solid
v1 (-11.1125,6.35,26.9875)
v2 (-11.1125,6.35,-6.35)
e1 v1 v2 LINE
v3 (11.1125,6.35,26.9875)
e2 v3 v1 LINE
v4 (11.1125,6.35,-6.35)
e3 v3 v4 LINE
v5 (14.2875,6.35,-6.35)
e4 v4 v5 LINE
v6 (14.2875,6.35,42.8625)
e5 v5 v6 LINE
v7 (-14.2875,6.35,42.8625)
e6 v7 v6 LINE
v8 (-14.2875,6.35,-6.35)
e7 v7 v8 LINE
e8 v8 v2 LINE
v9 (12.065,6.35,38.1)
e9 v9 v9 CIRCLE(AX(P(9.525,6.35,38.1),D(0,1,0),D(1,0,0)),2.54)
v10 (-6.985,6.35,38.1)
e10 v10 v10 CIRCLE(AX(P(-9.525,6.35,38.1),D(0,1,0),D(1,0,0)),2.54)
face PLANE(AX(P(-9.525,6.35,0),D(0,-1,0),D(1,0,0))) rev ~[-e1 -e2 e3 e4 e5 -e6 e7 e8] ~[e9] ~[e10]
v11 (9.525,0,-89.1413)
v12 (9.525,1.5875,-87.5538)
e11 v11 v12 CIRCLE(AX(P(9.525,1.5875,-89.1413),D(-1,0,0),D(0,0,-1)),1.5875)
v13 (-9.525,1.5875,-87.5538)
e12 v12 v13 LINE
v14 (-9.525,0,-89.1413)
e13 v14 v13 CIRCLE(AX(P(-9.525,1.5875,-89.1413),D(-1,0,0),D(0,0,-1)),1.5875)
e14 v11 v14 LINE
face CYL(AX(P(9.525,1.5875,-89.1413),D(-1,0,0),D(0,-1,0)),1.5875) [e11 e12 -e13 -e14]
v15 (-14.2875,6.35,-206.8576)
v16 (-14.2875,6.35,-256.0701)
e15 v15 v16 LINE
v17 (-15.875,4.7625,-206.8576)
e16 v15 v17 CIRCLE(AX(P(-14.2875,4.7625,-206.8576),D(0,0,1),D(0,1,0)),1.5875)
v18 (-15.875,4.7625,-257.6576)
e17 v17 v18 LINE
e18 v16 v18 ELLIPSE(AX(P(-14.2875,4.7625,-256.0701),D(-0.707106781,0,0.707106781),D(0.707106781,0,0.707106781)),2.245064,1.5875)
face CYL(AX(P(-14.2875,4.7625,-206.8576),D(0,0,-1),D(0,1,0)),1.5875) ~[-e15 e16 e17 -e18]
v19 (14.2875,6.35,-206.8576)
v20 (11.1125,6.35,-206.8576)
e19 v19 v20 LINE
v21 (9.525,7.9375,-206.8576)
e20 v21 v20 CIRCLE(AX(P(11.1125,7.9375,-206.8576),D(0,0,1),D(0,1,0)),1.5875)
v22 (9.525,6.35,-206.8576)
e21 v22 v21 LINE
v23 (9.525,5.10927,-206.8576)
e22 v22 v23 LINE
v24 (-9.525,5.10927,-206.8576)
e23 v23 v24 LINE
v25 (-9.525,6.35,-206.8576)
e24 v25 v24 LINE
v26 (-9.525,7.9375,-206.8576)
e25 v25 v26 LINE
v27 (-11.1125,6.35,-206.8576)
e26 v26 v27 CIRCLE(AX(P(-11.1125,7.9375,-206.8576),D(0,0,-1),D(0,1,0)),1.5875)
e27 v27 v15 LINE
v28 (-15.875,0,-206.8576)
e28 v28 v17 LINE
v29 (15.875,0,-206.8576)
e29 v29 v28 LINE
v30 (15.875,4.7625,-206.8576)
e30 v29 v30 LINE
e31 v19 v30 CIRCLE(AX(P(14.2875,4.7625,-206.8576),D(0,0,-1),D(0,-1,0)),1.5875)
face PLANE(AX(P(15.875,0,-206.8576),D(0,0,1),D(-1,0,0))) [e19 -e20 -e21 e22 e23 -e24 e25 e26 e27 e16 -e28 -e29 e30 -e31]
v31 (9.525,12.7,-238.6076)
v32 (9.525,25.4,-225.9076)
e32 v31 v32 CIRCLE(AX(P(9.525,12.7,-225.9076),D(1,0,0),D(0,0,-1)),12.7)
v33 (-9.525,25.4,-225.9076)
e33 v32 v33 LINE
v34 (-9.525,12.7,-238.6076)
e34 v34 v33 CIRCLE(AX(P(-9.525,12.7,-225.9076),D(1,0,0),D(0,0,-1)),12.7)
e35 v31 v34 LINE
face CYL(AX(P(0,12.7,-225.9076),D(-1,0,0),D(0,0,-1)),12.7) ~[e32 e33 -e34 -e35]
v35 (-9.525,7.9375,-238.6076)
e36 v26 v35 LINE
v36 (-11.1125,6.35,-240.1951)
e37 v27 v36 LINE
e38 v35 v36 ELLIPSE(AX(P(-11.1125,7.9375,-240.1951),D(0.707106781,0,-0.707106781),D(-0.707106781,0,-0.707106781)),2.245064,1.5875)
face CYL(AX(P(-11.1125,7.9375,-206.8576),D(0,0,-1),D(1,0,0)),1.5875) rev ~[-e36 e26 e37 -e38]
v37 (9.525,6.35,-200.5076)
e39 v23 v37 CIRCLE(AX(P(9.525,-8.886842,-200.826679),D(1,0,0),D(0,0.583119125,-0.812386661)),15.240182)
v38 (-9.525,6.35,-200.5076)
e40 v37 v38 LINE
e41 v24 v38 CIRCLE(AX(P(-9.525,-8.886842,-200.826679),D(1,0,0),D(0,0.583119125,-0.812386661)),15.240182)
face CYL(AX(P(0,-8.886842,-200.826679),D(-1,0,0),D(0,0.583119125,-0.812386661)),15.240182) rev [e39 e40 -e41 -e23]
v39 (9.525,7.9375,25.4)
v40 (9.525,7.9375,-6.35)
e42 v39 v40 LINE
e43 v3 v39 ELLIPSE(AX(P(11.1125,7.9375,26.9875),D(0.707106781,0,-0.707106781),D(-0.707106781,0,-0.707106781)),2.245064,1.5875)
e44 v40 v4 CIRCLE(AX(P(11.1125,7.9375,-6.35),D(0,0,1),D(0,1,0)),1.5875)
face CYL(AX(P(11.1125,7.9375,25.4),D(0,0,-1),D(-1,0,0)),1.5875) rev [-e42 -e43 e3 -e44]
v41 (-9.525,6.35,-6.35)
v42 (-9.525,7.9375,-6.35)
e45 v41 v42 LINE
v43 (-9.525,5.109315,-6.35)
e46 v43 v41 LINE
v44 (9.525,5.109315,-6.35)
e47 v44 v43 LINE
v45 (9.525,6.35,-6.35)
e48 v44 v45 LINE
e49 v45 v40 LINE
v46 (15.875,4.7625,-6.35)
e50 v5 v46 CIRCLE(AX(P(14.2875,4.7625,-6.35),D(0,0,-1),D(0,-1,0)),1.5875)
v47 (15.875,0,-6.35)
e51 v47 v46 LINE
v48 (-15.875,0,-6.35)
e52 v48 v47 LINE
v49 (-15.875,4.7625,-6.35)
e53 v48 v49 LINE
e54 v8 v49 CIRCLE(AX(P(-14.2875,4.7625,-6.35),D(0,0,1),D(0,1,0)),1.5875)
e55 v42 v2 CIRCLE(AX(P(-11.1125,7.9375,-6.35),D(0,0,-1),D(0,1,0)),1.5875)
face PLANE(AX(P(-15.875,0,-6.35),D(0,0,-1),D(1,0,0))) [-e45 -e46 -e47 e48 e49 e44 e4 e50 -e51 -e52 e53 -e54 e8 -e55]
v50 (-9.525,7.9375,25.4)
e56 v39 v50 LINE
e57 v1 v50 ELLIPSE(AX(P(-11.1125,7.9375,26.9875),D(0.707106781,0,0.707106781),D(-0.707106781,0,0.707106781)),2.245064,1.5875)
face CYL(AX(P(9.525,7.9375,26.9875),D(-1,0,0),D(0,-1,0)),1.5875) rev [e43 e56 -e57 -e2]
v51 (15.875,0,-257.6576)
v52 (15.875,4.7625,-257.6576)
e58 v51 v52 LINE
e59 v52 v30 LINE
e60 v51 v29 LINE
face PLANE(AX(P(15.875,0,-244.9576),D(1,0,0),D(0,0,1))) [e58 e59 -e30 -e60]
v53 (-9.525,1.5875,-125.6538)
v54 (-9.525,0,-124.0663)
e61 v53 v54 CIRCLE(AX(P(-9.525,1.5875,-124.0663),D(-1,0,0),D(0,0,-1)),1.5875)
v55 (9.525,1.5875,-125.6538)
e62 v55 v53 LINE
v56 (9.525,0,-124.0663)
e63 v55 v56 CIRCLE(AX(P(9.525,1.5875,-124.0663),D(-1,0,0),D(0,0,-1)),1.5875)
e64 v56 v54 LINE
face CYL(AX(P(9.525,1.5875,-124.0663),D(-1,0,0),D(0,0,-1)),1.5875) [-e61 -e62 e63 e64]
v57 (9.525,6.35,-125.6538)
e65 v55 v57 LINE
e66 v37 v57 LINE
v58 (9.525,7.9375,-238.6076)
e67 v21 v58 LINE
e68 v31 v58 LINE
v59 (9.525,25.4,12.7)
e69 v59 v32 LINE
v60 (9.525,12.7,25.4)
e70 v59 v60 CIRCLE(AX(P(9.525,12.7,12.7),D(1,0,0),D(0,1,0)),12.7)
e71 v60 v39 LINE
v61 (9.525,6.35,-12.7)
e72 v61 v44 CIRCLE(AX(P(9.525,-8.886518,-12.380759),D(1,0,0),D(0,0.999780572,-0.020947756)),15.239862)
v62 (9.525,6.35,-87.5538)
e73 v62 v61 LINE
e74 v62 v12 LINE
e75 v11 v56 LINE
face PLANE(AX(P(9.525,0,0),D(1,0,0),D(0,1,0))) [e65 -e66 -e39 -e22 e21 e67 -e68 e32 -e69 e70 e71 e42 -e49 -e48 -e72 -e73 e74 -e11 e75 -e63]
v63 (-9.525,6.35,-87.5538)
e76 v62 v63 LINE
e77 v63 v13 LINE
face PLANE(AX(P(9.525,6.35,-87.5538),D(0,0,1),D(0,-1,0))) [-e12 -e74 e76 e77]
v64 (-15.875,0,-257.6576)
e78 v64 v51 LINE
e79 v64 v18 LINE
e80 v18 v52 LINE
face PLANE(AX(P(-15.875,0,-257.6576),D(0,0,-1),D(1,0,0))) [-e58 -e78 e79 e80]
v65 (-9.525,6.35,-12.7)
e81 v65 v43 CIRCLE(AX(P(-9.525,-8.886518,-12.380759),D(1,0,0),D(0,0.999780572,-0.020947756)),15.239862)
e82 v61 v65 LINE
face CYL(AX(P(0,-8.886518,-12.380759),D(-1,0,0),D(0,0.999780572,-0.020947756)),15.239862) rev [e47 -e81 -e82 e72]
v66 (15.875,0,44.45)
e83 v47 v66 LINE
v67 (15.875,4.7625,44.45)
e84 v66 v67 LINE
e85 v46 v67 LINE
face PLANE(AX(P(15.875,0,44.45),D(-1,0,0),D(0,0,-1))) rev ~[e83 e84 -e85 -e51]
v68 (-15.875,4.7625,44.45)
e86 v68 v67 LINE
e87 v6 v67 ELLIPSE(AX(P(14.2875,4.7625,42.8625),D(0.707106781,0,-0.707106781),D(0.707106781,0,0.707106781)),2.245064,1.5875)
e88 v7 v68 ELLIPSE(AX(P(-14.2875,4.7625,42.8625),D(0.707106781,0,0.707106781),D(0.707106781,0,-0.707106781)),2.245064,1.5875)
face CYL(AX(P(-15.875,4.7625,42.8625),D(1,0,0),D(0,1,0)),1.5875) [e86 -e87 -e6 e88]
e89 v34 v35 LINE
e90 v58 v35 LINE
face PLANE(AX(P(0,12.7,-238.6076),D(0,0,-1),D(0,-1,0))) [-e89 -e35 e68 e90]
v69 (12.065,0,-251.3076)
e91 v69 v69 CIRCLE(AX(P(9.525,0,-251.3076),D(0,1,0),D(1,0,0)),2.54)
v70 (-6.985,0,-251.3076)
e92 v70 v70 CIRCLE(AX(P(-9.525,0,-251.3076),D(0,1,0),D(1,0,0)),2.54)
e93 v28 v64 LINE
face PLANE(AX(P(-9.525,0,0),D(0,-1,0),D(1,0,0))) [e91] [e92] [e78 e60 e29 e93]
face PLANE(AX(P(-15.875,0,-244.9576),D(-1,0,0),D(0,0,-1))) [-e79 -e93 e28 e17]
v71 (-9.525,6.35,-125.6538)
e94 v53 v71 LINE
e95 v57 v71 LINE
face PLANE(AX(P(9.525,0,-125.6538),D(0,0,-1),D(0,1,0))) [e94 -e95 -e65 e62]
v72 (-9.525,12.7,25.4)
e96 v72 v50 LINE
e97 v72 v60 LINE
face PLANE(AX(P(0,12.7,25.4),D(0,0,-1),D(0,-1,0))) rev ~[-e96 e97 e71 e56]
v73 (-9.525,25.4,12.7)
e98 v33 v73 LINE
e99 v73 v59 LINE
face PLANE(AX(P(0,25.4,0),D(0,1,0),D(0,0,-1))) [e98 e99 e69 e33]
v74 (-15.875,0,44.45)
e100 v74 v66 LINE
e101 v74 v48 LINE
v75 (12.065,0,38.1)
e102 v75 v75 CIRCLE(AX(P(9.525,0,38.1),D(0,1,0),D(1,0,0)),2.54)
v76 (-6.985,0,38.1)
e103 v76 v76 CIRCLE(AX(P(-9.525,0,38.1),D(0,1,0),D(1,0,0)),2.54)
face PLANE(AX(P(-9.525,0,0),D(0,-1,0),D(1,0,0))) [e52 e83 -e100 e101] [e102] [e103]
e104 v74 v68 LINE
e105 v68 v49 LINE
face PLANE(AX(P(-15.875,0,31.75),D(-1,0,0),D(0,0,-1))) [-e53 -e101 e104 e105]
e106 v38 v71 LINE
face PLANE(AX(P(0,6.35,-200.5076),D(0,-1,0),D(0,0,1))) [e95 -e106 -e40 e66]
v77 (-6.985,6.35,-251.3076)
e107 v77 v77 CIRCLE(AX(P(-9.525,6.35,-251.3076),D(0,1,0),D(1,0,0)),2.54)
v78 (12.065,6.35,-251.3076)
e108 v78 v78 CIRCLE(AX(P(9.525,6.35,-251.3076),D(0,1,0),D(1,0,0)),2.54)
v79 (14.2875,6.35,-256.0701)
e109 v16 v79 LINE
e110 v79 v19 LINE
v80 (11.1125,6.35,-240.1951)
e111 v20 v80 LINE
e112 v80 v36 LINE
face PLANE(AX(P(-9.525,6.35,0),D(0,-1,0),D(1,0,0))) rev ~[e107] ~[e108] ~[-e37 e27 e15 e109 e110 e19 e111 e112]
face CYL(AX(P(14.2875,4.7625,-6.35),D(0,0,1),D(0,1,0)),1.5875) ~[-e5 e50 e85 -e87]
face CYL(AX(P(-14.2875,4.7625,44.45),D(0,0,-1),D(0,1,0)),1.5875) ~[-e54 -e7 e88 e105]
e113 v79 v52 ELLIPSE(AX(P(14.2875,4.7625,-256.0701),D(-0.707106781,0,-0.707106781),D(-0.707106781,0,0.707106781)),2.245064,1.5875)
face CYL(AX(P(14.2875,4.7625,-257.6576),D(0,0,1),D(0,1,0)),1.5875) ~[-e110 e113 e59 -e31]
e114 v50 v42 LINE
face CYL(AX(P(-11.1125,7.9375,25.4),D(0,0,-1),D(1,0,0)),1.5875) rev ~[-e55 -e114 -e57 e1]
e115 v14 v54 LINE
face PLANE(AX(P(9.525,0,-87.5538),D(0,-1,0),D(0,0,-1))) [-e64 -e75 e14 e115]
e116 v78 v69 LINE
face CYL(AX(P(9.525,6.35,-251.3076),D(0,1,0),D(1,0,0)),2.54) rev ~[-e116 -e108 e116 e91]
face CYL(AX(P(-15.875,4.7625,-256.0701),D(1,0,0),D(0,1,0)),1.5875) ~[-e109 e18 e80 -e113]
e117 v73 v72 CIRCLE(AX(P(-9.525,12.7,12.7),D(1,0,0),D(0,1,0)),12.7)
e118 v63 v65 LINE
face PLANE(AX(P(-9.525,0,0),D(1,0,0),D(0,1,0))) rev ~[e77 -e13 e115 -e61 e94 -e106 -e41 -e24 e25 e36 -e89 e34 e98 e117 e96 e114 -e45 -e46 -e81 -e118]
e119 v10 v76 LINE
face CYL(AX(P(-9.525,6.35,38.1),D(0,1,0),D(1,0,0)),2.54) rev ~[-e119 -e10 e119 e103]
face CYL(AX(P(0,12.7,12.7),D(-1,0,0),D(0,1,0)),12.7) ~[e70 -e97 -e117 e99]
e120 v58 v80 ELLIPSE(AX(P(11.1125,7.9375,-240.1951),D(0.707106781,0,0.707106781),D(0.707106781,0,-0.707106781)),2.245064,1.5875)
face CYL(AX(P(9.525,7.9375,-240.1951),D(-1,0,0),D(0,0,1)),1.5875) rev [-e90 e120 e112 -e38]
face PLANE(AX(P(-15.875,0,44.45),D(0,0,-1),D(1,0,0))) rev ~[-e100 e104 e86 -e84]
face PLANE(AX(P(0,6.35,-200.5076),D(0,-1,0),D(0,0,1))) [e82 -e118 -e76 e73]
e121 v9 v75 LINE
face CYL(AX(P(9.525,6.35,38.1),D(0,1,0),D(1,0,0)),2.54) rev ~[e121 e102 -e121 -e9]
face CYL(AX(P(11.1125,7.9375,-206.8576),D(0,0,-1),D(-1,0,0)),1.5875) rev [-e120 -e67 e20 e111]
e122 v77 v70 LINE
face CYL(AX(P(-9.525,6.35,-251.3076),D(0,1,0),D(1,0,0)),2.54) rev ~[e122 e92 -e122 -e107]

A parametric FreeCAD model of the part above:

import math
import FreeCAD as App
import Part
import Sketcher

V = App.Vector
Q = App.Units.Quantity


def edges_at(feature, points):
    """Names of the edges that pass closest to the given points."""
    edges = feature.Shape.Edges
    near = lambda p: min(range(len(edges)), key=lambda i: edges[i].distToShape(Part.Vertex(*p))[0])
    return sorted({f"Edge{near(p) + 1}" for p in points})


def add_polygon(sketch, points):
    """Adds a closed chain of lines whose ends are joined by coincident constraints."""
    first, n = sketch.GeometryCount, len(points)
    for a, b in zip(points, points[1:] + points[:1]):
        sketch.addGeometry(Part.LineSegment(App.Vector(*a, 0), App.Vector(*b, 0)), False)
    for i in range(n):
        sketch.addConstraint(Sketcher.Constraint("Coincident", first + i, 2, first + (i + 1) % n, 1))

doc = App.newDocument("Part")
params = doc.addObject("Spreadsheet::Sheet", "Params")
for row, (alias, value) in enumerate([
    ("sketch1_radius", "0.5 in"),
    ("sketch1_radius2", "0.6 in"),
    ("sketch1_height", "1 in"),
    ("sketch1_width", "0.5 in"),
    ("sketch1_height2", "9.394 in"),
    ("pad1_length", "0.75 in"),
    ("sketch2_width", "1.25 in"),
    ("sketch2_height", "2 in"),
    ("pad2_length", "0.25 in"),
    ("sketch3_diameter", "0.2 in"),
    ("sketch4_height", "1.5 in"),
    ("sketch4_width", "0.25 in"),
    ("pad3_length", "0.75 in"),
    ("fillet_radius", "0.0625 in"),
], start=1):
    params.set(f"A{row}", alias)
    params.set(f"B{row}", "=" + value)
    params.setAlias(f"B{row}", alias)

body = doc.addObject("PartDesign::Body", "Body")

sketch1 = body.newObject("Sketcher::SketchObject", "Sketch")
sketch1.AttachmentSupport = (doc.getObject("YZ_Plane"), [""])
sketch1.MapMode = "FlatFace"
sketch1.addGeometry([
    Part.LineSegment(V(25.4, -225.9076, 0), V(25.4, 12.7, 0)),
    Part.ArcOfCircle(Part.Circle(V(12.7, 12.7, 0), V(0, 0, 1), 12.7), math.radians(0), math.radians(90)),
    Part.LineSegment(V(12.7, 25.4, 0), V(0, 25.4, 0)),
    Part.LineSegment(V(0, 25.4, 0), V(0, 0, 0)),
    Part.ArcOfCircle(Part.Circle(V(-8.8867, -12.3808, 0), V(0, 0, 1), 15.240043), math.radians(-1.200138), math.radians(54.329942)),
    Part.LineSegment(V(6.35, -12.7, 0), V(6.35, -200.5076, 0)),
    Part.ArcOfCircle(Part.Circle(V(-8.8867, -200.8268, 0), V(0, 0, 1), 15.240001), math.radians(-54.329942), math.radians(1.200138)),
    Part.LineSegment(V(0, -213.2076, 0), V(0, -238.6076, 0)),
    Part.LineSegment(V(0, -238.6076, 0), V(12.7, -238.6076, 0)),
    Part.ArcOfCircle(Part.Circle(V(12.7, -225.9076, 0), V(0, 0, 1), 12.7), math.radians(-90), math.radians(0)),
], False)
sketch1.addConstraint([
    Sketcher.Constraint("Tangent", 0, 2, 1, 1),
    Sketcher.Constraint("Tangent", 1, 2, 2, 1),
    Sketcher.Constraint("Coincident", 2, 2, 3, 1),
    Sketcher.Constraint("Coincident", 3, 2, 4, 2),
    Sketcher.Constraint("Coincident", 4, 1, 5, 1),
    Sketcher.Constraint("Coincident", 5, 2, 6, 2),
    Sketcher.Constraint("Coincident", 6, 1, 7, 1),
    Sketcher.Constraint("Coincident", 7, 2, 8, 1),
    Sketcher.Constraint("Tangent", 8, 2, 9, 1),
    Sketcher.Constraint("Tangent", 9, 2, 0, 1),
    Sketcher.Constraint("Vertical", 0),
    Sketcher.Constraint("Horizontal", 2),
    Sketcher.Constraint("Vertical", 3),
    Sketcher.Constraint("Vertical", 5),
    Sketcher.Constraint("Vertical", 7),
    Sketcher.Constraint("Horizontal", 8),
    Sketcher.Constraint("Coincident", 3, 2, -1, 1),
    Sketcher.Constraint("Equal", 4, 6),
    Sketcher.Constraint("Equal", 1, 9),
    Sketcher.Constraint("PointOnObject", 6, 1, -2),
    Sketcher.Constraint("Vertical", 4, 3, 6, 3),
    Sketcher.Constraint("Equal", 3, 7),
    Sketcher.Constraint("Radius", 1, Q("0.5 in")),
    Sketcher.Constraint("Radius", 4, Q("0.6 in")),
    Sketcher.Constraint("DistanceY", 3, 2, 3, 1, Q("1 in")),
    Sketcher.Constraint("DistanceX", 2, 2, 2, 1, Q("0.5 in")),
    Sketcher.Constraint("DistanceY", 4, 1, 1, 3, Q("1 in")),
    Sketcher.Constraint("DistanceY", 0, 1, 0, 2, Q("9.394 in")),
    Sketcher.Constraint("DistanceX", -1, 1, 4, 1, Q("0.25 in")),
])
sketch1.setExpression("Constraints[22]", "Params.sketch1_radius")
sketch1.setExpression("Constraints[23]", "Params.sketch1_radius2")
sketch1.setExpression("Constraints[24]", "Params.sketch1_height")
sketch1.setExpression("Constraints[25]", "Params.sketch1_width")
sketch1.setExpression("Constraints[27]", "Params.sketch1_height2")
pad1 = body.newObject("PartDesign::Pad", "Pad")
pad1.Profile = sketch1
pad1.setExpression("Length", "Params.pad1_length")
pad1.Midplane = True

sketch2 = body.newObject("Sketcher::SketchObject", "Sketch001")
sketch2.AttachmentSupport = (doc.getObject("XZ_Plane"), [""])
sketch2.MapMode = "FlatFace"
add_polygon(sketch2, [(-15.875, -6.35), (15.875, -6.35), (15.875, 44.45), (-15.875, 44.45)])
add_polygon(sketch2, [(15.875, -206.8576), (-15.875, -206.8576), (-15.875, -257.6576), (15.875, -257.6576)])
sketch2.addConstraint([
    Sketcher.Constraint("Horizontal", 0),
    Sketcher.Constraint("Vertical", 1),
    Sketcher.Constraint("Horizontal", 2),
    Sketcher.Constraint("Vertical", 3),
    Sketcher.Constraint("Horizontal", 4),
    Sketcher.Constraint("Vertical", 5),
    Sketcher.Constraint("Horizontal", 6),
    Sketcher.Constraint("Vertical", 7),
    Sketcher.Constraint("Vertical", 3, 2, 4, 2),
    Sketcher.Constraint("Vertical", 1, 2, 6, 2),
    Sketcher.Constraint("Equal", 3, 5),
    Sketcher.Constraint("DistanceX", 0, 1, 0, 2, Q("1.25 in")),
    Sketcher.Constraint("DistanceY", 1, 1, 1, 2, Q("2 in")),
    Sketcher.Constraint("DistanceY", 0, 2, -1, 1, Q("0.25 in")),
    Sketcher.Constraint("DistanceX", -1, 1, 0, 2, Q("0.625 in")),
    Sketcher.Constraint("DistanceY", 4, 2, -1, 1, Q("8.144 in")),
])
sketch2.setExpression("Constraints[19]", "Params.sketch2_width")
sketch2.setExpression("Constraints[20]", "Params.sketch2_height")
pad2 = body.newObject("PartDesign::Pad", "Pad001")
pad2.Profile = sketch2
pad2.setExpression("Length", "Params.pad2_length")
pad2.Reversed = True

sketch3 = body.newObject("Sketcher::SketchObject", "Sketch002")
sketch3.AttachmentSupport = (doc.getObject("XZ_Plane"), [""])
sketch3.MapMode = "FlatFace"
sketch3.AttachmentOffset = App.Placement(V(0, 0, -0.25 * 25.4), App.Rotation())
sketch3.addGeometry([
    Part.Circle(V(-9.525, -251.3076, 0), V(0, 0, 1), 2.54),
    Part.Circle(V(9.525, -251.3076, 0), V(0, 0, 1), 2.54),
    Part.Circle(V(-9.525, 38.1, 0), V(0, 0, 1), 2.54),
    Part.Circle(V(9.525, 38.1, 0), V(0, 0, 1), 2.54),
], False)
sketch3.addConstraint([
    Sketcher.Constraint("Equal", 0, 1),
    Sketcher.Constraint("Equal", 1, 2),
    Sketcher.Constraint("Equal", 2, 3),
    Sketcher.Constraint("Symmetric", 0, 3, 1, 3, -2),
    Sketcher.Constraint("Symmetric", 2, 3, 3, 3, -2),
    Sketcher.Constraint("Vertical", 0, 3, 2, 3),
    Sketcher.Constraint("Diameter", 0, Q("0.2 in")),
    Sketcher.Constraint("DistanceY", -1, 1, 2, 3, Q("1.5 in")),
    Sketcher.Constraint("DistanceX", 0, 3, 1, 3, Q("0.75 in")),
    Sketcher.Constraint("DistanceY", 0, 3, -1, 1, Q("9.894 in")),
])
sketch3.setExpression("Constraints[6]", "Params.sketch3_diameter")
pocket1 = body.newObject("PartDesign::Pocket", "Pocket")
pocket1.Profile = sketch3
pocket1.Type = "ThroughAll"
pocket1.Reversed = True

sketch4 = body.newObject("Sketcher::SketchObject", "Sketch003")
sketch4.AttachmentSupport = (doc.getObject("YZ_Plane"), [""])
sketch4.MapMode = "FlatFace"
sketch4.AttachmentOffset = App.Placement(V(0, 0, 0.375 * 25.4), App.Rotation())
add_polygon(sketch4, [(0, -125.6538), (6.35, -125.6538), (6.35, -87.5538), (0, -87.5538)])
sketch4.addConstraint([
    Sketcher.Constraint("Horizontal", 0),
    Sketcher.Constraint("Vertical", 1),
    Sketcher.Constraint("Horizontal", 2),
    Sketcher.Constraint("Vertical", 3),
    Sketcher.Constraint("PointOnObject", 2, 2, -2),
    Sketcher.Constraint("DistanceY", 1, 1, 1, 2, Q("1.5 in")),
    Sketcher.Constraint("DistanceX", 0, 1, 0, 2, Q("0.25 in")),
    Sketcher.Constraint("DistanceY", 0, 2, -1, 1, Q("4.947 in")),
])
sketch4.setExpression("Constraints[9]", "Params.sketch4_height")
sketch4.setExpression("Constraints[10]", "Params.sketch4_width")
pad3 = body.newObject("PartDesign::Pad", "Pad002")
pad3.Profile = sketch4
pad3.setExpression("Length", "Params.pad3_length")
pad3.Reversed = True
doc.recompute()

fillet = body.newObject("PartDesign::Fillet", "Fillet")
fillet.Base = (pad3, edges_at(pad3, [
    (15.875, 6.35, 19.05),
    (0, 6.35, 25.4),
    (9.525, 6.35, 9.525),
    (0, 6.35, 44.45),
    (-15.875, 6.35, 19.05),
    (-9.525, 6.35, 9.525),
    (0, 0, -125.654),
    (0, 0, -87.554),
    (9.525, 6.35, -222.733),
    (15.875, 6.35, -232.258),
    (0, 6.35, -238.608),
    (0, 6.35, -257.658),
    (-9.525, 6.35, -222.733),
    (-15.875, 6.35, -232.258),
]))
fillet.setExpression("Radius", "Params.fillet_radius")

doc.recompute()
